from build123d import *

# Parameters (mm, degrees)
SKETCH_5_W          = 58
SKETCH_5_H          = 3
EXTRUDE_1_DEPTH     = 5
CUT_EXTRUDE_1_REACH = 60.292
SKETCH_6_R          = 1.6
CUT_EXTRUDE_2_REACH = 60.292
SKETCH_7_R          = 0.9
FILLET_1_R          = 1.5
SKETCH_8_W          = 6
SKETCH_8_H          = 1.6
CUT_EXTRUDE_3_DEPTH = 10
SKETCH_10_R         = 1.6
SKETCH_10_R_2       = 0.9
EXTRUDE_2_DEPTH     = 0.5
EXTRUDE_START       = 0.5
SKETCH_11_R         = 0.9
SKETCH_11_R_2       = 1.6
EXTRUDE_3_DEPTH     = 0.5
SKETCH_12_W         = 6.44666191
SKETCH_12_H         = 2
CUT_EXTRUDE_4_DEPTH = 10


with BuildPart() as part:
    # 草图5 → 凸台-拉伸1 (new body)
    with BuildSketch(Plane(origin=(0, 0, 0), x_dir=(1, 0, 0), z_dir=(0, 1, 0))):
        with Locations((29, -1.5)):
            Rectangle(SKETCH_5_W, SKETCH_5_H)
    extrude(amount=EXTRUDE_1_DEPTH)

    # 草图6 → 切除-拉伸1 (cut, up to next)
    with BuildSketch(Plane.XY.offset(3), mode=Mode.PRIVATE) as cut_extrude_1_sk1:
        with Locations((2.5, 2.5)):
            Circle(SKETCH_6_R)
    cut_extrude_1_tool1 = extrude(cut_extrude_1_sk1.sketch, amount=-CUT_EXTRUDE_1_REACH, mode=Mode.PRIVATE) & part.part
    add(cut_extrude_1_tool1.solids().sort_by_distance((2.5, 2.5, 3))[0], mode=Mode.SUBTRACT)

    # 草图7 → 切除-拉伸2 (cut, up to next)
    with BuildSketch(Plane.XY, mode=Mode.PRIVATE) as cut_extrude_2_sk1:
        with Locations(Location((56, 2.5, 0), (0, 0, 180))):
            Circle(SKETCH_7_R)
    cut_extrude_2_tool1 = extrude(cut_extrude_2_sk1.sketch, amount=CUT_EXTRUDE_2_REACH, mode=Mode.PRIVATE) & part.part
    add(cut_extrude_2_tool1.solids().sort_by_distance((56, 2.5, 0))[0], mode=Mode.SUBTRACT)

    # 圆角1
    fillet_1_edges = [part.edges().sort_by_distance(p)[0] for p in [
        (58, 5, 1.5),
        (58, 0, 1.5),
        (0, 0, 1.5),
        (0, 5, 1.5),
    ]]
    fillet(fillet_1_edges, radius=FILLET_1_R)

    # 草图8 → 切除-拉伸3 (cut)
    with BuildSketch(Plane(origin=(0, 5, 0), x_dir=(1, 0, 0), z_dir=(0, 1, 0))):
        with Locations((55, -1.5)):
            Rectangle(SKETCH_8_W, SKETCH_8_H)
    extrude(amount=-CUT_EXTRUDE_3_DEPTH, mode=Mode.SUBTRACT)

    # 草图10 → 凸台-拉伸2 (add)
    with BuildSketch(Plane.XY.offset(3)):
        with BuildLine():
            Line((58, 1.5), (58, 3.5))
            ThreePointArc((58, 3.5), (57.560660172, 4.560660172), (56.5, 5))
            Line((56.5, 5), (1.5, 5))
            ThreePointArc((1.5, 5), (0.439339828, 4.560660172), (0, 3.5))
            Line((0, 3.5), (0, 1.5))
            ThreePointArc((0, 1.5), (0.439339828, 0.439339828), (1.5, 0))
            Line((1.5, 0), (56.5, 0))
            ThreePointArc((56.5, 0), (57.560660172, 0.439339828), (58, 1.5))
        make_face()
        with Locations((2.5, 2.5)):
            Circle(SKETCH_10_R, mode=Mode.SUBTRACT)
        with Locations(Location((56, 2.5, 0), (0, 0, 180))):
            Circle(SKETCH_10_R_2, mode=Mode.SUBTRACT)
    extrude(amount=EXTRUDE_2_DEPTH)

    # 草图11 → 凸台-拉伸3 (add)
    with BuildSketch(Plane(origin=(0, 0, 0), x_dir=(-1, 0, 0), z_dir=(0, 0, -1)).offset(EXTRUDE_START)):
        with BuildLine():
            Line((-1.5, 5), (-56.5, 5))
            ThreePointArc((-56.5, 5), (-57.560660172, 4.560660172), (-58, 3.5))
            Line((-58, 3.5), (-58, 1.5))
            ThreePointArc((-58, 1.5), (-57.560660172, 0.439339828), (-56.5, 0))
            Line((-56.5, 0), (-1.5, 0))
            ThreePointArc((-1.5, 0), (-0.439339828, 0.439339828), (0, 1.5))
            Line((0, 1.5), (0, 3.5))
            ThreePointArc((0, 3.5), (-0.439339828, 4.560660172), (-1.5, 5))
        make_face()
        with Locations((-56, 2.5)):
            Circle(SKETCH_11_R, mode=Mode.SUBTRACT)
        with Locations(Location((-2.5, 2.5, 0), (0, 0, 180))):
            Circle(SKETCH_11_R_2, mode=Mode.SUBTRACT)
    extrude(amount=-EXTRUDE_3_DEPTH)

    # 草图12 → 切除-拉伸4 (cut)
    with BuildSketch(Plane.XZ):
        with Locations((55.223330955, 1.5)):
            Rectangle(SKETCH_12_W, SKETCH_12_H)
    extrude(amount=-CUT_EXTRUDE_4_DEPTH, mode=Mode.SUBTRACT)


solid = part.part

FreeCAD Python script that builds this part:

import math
import FreeCAD as App
import Part
import Sketcher
from FreeCAD import Vector


def edges_at(feature, points):
    """Names of the edges that pass closest to the given points."""
    edges = feature.Shape.Edges
    near = lambda p: min(range(len(edges)), key=lambda i: edges[i].distToShape(Part.Vertex(*p))[0])
    return sorted({f"Edge{near(p) + 1}" for p in points})

doc = App.newDocument("Part")
params = doc.addObject("Spreadsheet::Sheet", "Params")
for row, (alias, value) in enumerate([
    ("sketch1_width", "58 mm"),
    ("sketch1_height", "3 mm"),
    ("pad1_length", "5 mm"),
    ("sketch2_diameter", "3.2 mm"),
    ("sketch3_diameter", "1.8 mm"),
    ("fillet_radius", "1.5 mm"),
    ("sketch4_width", "6 mm"),
    ("sketch4_height", "1.6 mm"),
    ("pocket3_length", "10 mm"),
    ("sketch5_diameter", "3.2 mm"),
    ("sketch5_diameter2", "1.8 mm"),
    ("sketch5_radius", "1.5 mm"),
    ("sketch5_width", "55 mm"),
    ("sketch5_height", "2 mm"),
    ("pad2_length", "0.5 mm"),
    ("sketch6_diameter", "1.8 mm"),
    ("sketch6_diameter2", "3.2 mm"),
    ("sketch6_radius", "1.5 mm"),
    ("sketch6_width", "55 mm"),
    ("sketch6_height", "2 mm"),
    ("pad3_length", "0.5 mm"),
    ("sketch7_height", "2 mm"),
    ("pocket4_length", "10 mm"),
], start=1):
    params.set(f"A{row}", alias)
    params.set(f"B{row}", "=" + value)
    params.setAlias(f"B{row}", alias)

body = doc.addObject("PartDesign::Body", "Body")

# Sketch on XZ plane
sketch1 = doc.addObject("Sketcher::SketchObject", "Sketch")
body.addObject(sketch1)
sketch1.AttachmentSupport = (doc.XZ_Plane, [""])
sketch1.MapMode = "FlatFace"
sketch1.addGeometry(Part.LineSegment(Vector(0, 0, 0), Vector(0, 3, 0)), False)
sketch1.addGeometry(Part.LineSegment(Vector(0, 3, 0), Vector(58, 3, 0)), False)
sketch1.addGeometry(Part.LineSegment(Vector(58, 3, 0), Vector(58, 0, 0)), False)
sketch1.addGeometry(Part.LineSegment(Vector(58, 0, 0), Vector(0, 0, 0)), False)
sketch1.addConstraint(Sketcher.Constraint("Coincident", 0, 2, 1, 1))
sketch1.addConstraint(Sketcher.Constraint("Coincident", 1, 2, 2, 1))
sketch1.addConstraint(Sketcher.Constraint("Coincident", 2, 2, 3, 1))
sketch1.addConstraint(Sketcher.Constraint("Coincident", 3, 2, 0, 1))
sketch1.addConstraint(Sketcher.Constraint("Vertical", 0))
sketch1.addConstraint(Sketcher.Constraint("Horizontal", 1))
sketch1.addConstraint(Sketcher.Constraint("Vertical", 2))
sketch1.addConstraint(Sketcher.Constraint("Horizontal", 3))
sketch1.addConstraint(Sketcher.Constraint("Coincident", 3, 2, -1, 1))
sketch1.addConstraint(Sketcher.Constraint("DistanceX", 1, 1, 1, 2, 58.0))
sketch1.addConstraint(Sketcher.Constraint("DistanceY", 0, 1, 0, 2, 3.0))
sketch1.setExpression("Constraints[9]", "Params.sketch1_width")
sketch1.setExpression("Constraints[10]", "Params.sketch1_height")
pad1 = doc.addObject("PartDesign::Pad", "Pad")
body.addObject(pad1)
pad1.Profile = sketch1
pad1.setExpression("Length", "Params.pad1_length")
pad1.Reversed = True

# Sketch on XY plane
sketch2 = doc.addObject("Sketcher::SketchObject", "Sketch001")
body.addObject(sketch2)
sketch2.AttachmentSupport = (doc.XY_Plane, [""])
sketch2.MapMode = "FlatFace"
sketch2.AttachmentOffset = App.Placement(Vector(0, 0, 3), App.Rotation())
sketch2.addGeometry(Part.Circle(Vector(2.5, 2.5, 0), Vector(0, 0, 1), 1.6), False)
sketch2.addConstraint(Sketcher.Constraint("Diameter", 0, 3.2))
sketch2.addConstraint(Sketcher.Constraint("DistanceX", -1, 1, 0, 3, 2.5))
sketch2.addConstraint(Sketcher.Constraint("DistanceY", -1, 1, 0, 3, 2.5))
sketch2.setExpression("Constraints[0]", "Params.sketch2_diameter")
pocket1 = doc.addObject("PartDesign::Pocket", "Pocket")
body.addObject(pocket1)
pocket1.Profile = sketch2
pocket1.Type = "UpToFirst"

# Sketch on XY plane
sketch3 = doc.addObject("Sketcher::SketchObject", "Sketch002")
body.addObject(sketch3)
sketch3.AttachmentSupport = (doc.XY_Plane, [""])
sketch3.MapMode = "FlatFace"
sketch3.addGeometry(Part.Circle(Vector(56, 2.5, 0), Vector(0, 0, 1), 0.9), False)
sketch3.addConstraint(Sketcher.Constraint("Diameter", 0, 1.8))
sketch3.addConstraint(Sketcher.Constraint("DistanceX", -1, 1, 0, 3, 56.0))
sketch3.addConstraint(Sketcher.Constraint("DistanceY", -1, 1, 0, 3, 2.5))
sketch3.setExpression("Constraints[0]", "Params.sketch3_diameter")
pocket2 = doc.addObject("PartDesign::Pocket", "Pocket001")
body.addObject(pocket2)
pocket2.Profile = sketch3
pocket2.Type = "UpToFirst"
pocket2.Reversed = True
doc.recompute()

fillet = doc.addObject("PartDesign::Fillet", "Fillet")
body.addObject(fillet)
fillet.Base = (pocket2, edges_at(pocket2, [
    (58, 5, 1.5),
    (58, 0, 1.5),
    (0, 0, 1.5),
    (0, 5, 1.5),
]))
fillet.setExpression("Radius", "Params.fillet_radius")

# Sketch on XZ plane
sketch4 = doc.addObject("Sketcher::SketchObject", "Sketch003")
body.addObject(sketch4)
sketch4.AttachmentSupport = (doc.XZ_Plane, [""])
sketch4.MapMode = "FlatFace"
sketch4.AttachmentOffset = App.Placement(Vector(0, 0, -5), App.Rotation())
sketch4.addGeometry(Part.LineSegment(Vector(52, 0.7, 0), Vector(52, 2.3, 0)), False)
sketch4.addGeometry(Part.LineSegment(Vector(52, 2.3, 0), Vector(58, 2.3, 0)), False)
sketch4.addGeometry(Part.LineSegment(Vector(58, 2.3, 0), Vector(58, 0.7, 0)), False)
sketch4.addGeometry(Part.LineSegment(Vector(58, 0.7, 0), Vector(52, 0.7, 0)), False)
sketch4.addConstraint(Sketcher.Constraint("Coincident", 0, 2, 1, 1))
sketch4.addConstraint(Sketcher.Constraint("Coincident", 1, 2, 2, 1))
sketch4.addConstraint(Sketcher.Constraint("Coincident", 2, 2, 3, 1))
sketch4.addConstraint(Sketcher.Constraint("Coincident", 3, 2, 0, 1))
sketch4.addConstraint(Sketcher.Constraint("Vertical", 0))
sketch4.addConstraint(Sketcher.Constraint("Horizontal", 1))
sketch4.addConstraint(Sketcher.Constraint("Vertical", 2))
sketch4.addConstraint(Sketcher.Constraint("Horizontal", 3))
sketch4.addConstraint(Sketcher.Constraint("DistanceX", 1, 1, 1, 2, 6.0))
sketch4.addConstraint(Sketcher.Constraint("DistanceY", 0, 1, 0, 2, 1.6))
sketch4.addConstraint(Sketcher.Constraint("DistanceX", -1, 1, 0, 2, 52.0))
sketch4.addConstraint(Sketcher.Constraint("DistanceY", -1, 1, 0, 2, 2.3))
sketch4.setExpression("Constraints[8]", "Params.sketch4_width")
sketch4.setExpression("Constraints[9]", "Params.sketch4_height")
pocket3 = doc.addObject("PartDesign::Pocket", "Pocket002")
body.addObject(pocket3)
pocket3.Profile = sketch4
pocket3.setExpression("Length", "Params.pocket3_length")
pocket3.Reversed = True

# Sketch on XY plane
sketch5 = doc.addObject("Sketcher::SketchObject", "Sketch004")
body.addObject(sketch5)
sketch5.AttachmentSupport = (doc.XY_Plane, [""])
sketch5.MapMode = "FlatFace"
sketch5.AttachmentOffset = App.Placement(Vector(0, 0, 3), App.Rotation())
sketch5.addGeometry(Part.LineSegment(Vector(58, 1.5, 0), Vector(58, 3.5, 0)), False)
sketch5.addGeometry(Part.ArcOfCircle(Part.Circle(Vector(56.5, 3.5, 0), Vector(0, 0, 1), 1.5), math.radians(0), math.radians(90)), False)
sketch5.addGeometry(Part.LineSegment(Vector(56.5, 5, 0), Vector(1.5, 5, 0)), False)
sketch5.addGeometry(Part.ArcOfCircle(Part.Circle(Vector(1.5, 3.5, 0), Vector(0, 0, 1), 1.5), math.radians(90), math.radians(180)), False)
sketch5.addGeometry(Part.LineSegment(Vector(0, 3.5, 0), Vector(0, 1.5, 0)), False)
sketch5.addGeometry(Part.ArcOfCircle(Part.Circle(Vector(1.5, 1.5, 0), Vector(0, 0, 1), 1.5), math.radians(180), math.radians(270)), False)
sketch5.addGeometry(Part.LineSegment(Vector(1.5, 0, 0), Vector(56.5, 0, 0)), False)
sketch5.addGeometry(Part.ArcOfCircle(Part.Circle(Vector(56.5, 1.5, 0), Vector(0, 0, 1), 1.5), math.radians(-90), math.radians(0)), False)
sketch5.addGeometry(Part.Circle(Vector(2.5, 2.5, 0), Vector(0, 0, 1), 1.6), False)
sketch5.addGeometry(Part.Circle(Vector(56, 2.5, 0), Vector(0, 0, 1), 0.9), False)
sketch5.addConstraint(Sketcher.Constraint("Tangent", 0, 2, 1, 1))
sketch5.addConstraint(Sketcher.Constraint("Tangent", 1, 2, 2, 1))
sketch5.addConstraint(Sketcher.Constraint("Tangent", 2, 2, 3, 1))
sketch5.addConstraint(Sketcher.Constraint("Tangent", 3, 2, 4, 1))
sketch5.addConstraint(Sketcher.Constraint("Tangent", 4, 2, 5, 1))
sketch5.addConstraint(Sketcher.Constraint("Tangent", 5, 2, 6, 1))
sketch5.addConstraint(Sketcher.Constraint("Tangent", 6, 2, 7, 1))
sketch5.addConstraint(Sketcher.Constraint("Tangent", 7, 2, 0, 1))
sketch5.addConstraint(Sketcher.Constraint("Vertical", 0))
sketch5.addConstraint(Sketcher.Constraint("Horizontal", 2))
sketch5.addConstraint(Sketcher.Constraint("Vertical", 4))
sketch5.addConstraint(Sketcher.Constraint("Horizontal", 6))
sketch5.addConstraint(Sketcher.Constraint("Equal", 1, 3))
sketch5.addConstraint(Sketcher.Constraint("Equal", 3, 5))
sketch5.addConstraint(Sketcher.Constraint("Equal", 5, 7))
sketch5.addConstraint(Sketcher.Constraint("PointOnObject", 3, 2, -2))
sketch5.addConstraint(Sketcher.Constraint("PointOnObject", 5, 2, -1))
sketch5.addConstraint(Sketcher.Constraint("Horizontal", 8, 3, 9, 3))
sketch5.addConstraint(Sketcher.Constraint("Diameter", 8, 3.2))
sketch5.addConstraint(Sketcher.Constraint("Diameter", 9, 1.8))
sketch5.addConstraint(Sketcher.Constraint("Radius", 1, 1.5))
sketch5.addConstraint(Sketcher.Constraint("DistanceX", 2, 2, 2, 1, 55.0))
sketch5.addConstraint(Sketcher.Constraint("DistanceY", 0, 1, 0, 2, 2.0))
sketch5.addConstraint(Sketcher.Constraint("DistanceX", -1, 1, 9, 3, 56.0))
sketch5.addConstraint(Sketcher.Constraint("DistanceX", 3, 3, 8, 3, 1.0))
sketch5.addConstraint(Sketcher.Constraint("DistanceY", 8, 3, 3, 3, 1.0))
sketch5.setExpression("Constraints[18]", "Params.sketch5_diameter")
sketch5.setExpression("Constraints[19]", "Params.sketch5_diameter2")
sketch5.setExpression("Constraints[20]", "Params.sketch5_radius")
sketch5.setExpression("Constraints[21]", "Params.sketch5_width")
sketch5.setExpression("Constraints[22]", "Params.sketch5_height")
pad2 = doc.addObject("PartDesign::Pad", "Pad001")
body.addObject(pad2)
pad2.Profile = sketch5
pad2.setExpression("Length", "Params.pad2_length")

# Sketch on XY plane
sketch6 = doc.addObject("Sketcher::SketchObject", "Sketch005")
body.addObject(sketch6)
sketch6.AttachmentSupport = (doc.XY_Plane, [""])
sketch6.MapMode = "FlatFace"
sketch6.AttachmentOffset = App.Placement(Vector(0, 0, -0.5), App.Rotation())
sketch6.addGeometry(Part.LineSegment(Vector(1.5, 5, 0), Vector(56.5, 5, 0)), False)
sketch6.addGeometry(Part.ArcOfCircle(Part.Circle(Vector(56.5, 3.5, 0), Vector(0, 0, 1), 1.5), math.radians(0), math.radians(90)), False)
sketch6.addGeometry(Part.LineSegment(Vector(58, 3.5, 0), Vector(58, 1.5, 0)), False)
sketch6.addGeometry(Part.ArcOfCircle(Part.Circle(Vector(56.5, 1.5, 0), Vector(0, 0, 1), 1.5), math.radians(-90), math.radians(0)), False)
sketch6.addGeometry(Part.LineSegment(Vector(56.5, 0, 0), Vector(1.5, 0, 0)), False)
sketch6.addGeometry(Part.ArcOfCircle(Part.Circle(Vector(1.5, 1.5, 0), Vector(0, 0, 1), 1.5), math.radians(180), math.radians(270)), False)
sketch6.addGeometry(Part.LineSegment(Vector(0, 1.5, 0), Vector(0, 3.5, 0)), False)
sketch6.addGeometry(Part.ArcOfCircle(Part.Circle(Vector(1.5, 3.5, 0), Vector(0, 0, 1), 1.5), math.radians(90), math.radians(180)), False)
sketch6.addGeometry(Part.Circle(Vector(56, 2.5, 0), Vector(0, 0, 1), 0.9), False)
sketch6.addGeometry(Part.Circle(Vector(2.5, 2.5, 0), Vector(0, 0, 1), 1.6), False)
sketch6.addConstraint(Sketcher.Constraint("Tangent", 0, 2, 1, 2))
sketch6.addConstraint(Sketcher.Constraint("Tangent", 1, 1, 2, 1))
sketch6.addConstraint(Sketcher.Constraint("Tangent", 2, 2, 3, 2))
sketch6.addConstraint(Sketcher.Constraint("Tangent", 3, 1, 4, 1))
sketch6.addConstraint(Sketcher.Constraint("Tangent", 4, 2, 5, 2))
sketch6.addConstraint(Sketcher.Constraint("Tangent", 5, 1, 6, 1))
sketch6.addConstraint(Sketcher.Constraint("Tangent", 6, 2, 7, 2))
sketch6.addConstraint(Sketcher.Constraint("Tangent", 7, 1, 0, 1))
sketch6.addConstraint(Sketcher.Constraint("Horizontal", 0))
sketch6.addConstraint(Sketcher.Constraint("Vertical", 2))
sketch6.addConstraint(Sketcher.Constraint("Horizontal", 4))
sketch6.addConstraint(Sketcher.Constraint("Vertical", 6))
sketch6.addConstraint(Sketcher.Constraint("Equal", 1, 3))
sketch6.addConstraint(Sketcher.Constraint("Equal", 3, 5))
sketch6.addConstraint(Sketcher.Constraint("Equal", 5, 7))
sketch6.addConstraint(Sketcher.Constraint("PointOnObject", 3, 1, -1))
sketch6.addConstraint(Sketcher.Constraint("PointOnObject", 5, 1, -2))
sketch6.addConstraint(Sketcher.Constraint("Horizontal", 8, 3, 9, 3))
sketch6.addConstraint(Sketcher.Constraint("Diameter", 8, 1.8))
sketch6.addConstraint(Sketcher.Constraint("Diameter", 9, 3.2))
sketch6.addConstraint(Sketcher.Constraint("Radius", 1, 1.5))
sketch6.addConstraint(Sketcher.Constraint("DistanceX", 0, 1, 0, 2, 55.0))
sketch6.addConstraint(Sketcher.Constraint("DistanceY", 2, 2, 2, 1, 2.0))
sketch6.addConstraint(Sketcher.Constraint("DistanceX", -1, 1, 8, 3, 56.0))
sketch6.addConstraint(Sketcher.Constraint("DistanceY", 8, 3, 1, 3, 1.0))
sketch6.addConstraint(Sketcher.Constraint("DistanceX", 5, 3, 9, 3, 1.0))
sketch6.setExpression("Constraints[18]", "Params.sketch6_diameter")
sketch6.setExpression("Constraints[19]", "Params.sketch6_diameter2")
sketch6.setExpression("Constraints[20]", "Params.sketch6_radius")
sketch6.setExpression("Constraints[21]", "Params.sketch6_width")
sketch6.setExpression("Constraints[22]", "Params.sketch6_height")
pad3 = doc.addObject("PartDesign::Pad", "Pad002")
body.addObject(pad3)
pad3.Profile = sketch6
pad3.setExpression("Length", "Params.pad3_length")

# Sketch on XZ plane
sketch7 = doc.addObject("Sketcher::SketchObject", "Sketch006")
body.addObject(sketch7)
sketch7.AttachmentSupport = (doc.XZ_Plane, [""])
sketch7.MapMode = "FlatFace"
sketch7.addGeometry(Part.LineSegment(Vector(52, 2.5, 0), Vector(52, 0.5, 0)), False)
sketch7.addGeometry(Part.LineSegment(Vector(52, 0.5, 0), Vector(58.4, 0.5, 0)), False)
sketch7.addGeometry(Part.LineSegment(Vector(58.4, 0.5, 0), Vector(58.4, 2.5, 0)), False)
sketch7.addGeometry(Part.LineSegment(Vector(58.4, 2.5, 0), Vector(52, 2.5, 0)), False)
sketch7.addConstraint(Sketcher.Constraint("Coincident", 0, 2, 1, 1))
sketch7.addConstraint(Sketcher.Constraint("Coincident", 1, 2, 2, 1))
sketch7.addConstraint(Sketcher.Constraint("Coincident", 2, 2, 3, 1))
sketch7.addConstraint(Sketcher.Constraint("Coincident", 3, 2, 0, 1))
sketch7.addConstraint(Sketcher.Constraint("Vertical", 0))
sketch7.addConstraint(Sketcher.Constraint("Horizontal", 1))
sketch7.addConstraint(Sketcher.Constraint("Vertical", 2))
sketch7.addConstraint(Sketcher.Constraint("Horizontal", 3))
sketch7.addConstraint(Sketcher.Constraint("DistanceY", 0, 2, 0, 1, 2.0))
sketch7.addConstraint(Sketcher.Constraint("DistanceX", -1, 1, 0, 2, 52.0))
sketch7.addConstraint(Sketcher.Constraint("DistanceY", -1, 1, 0, 2, 0.5))
sketch7.addConstraint(Sketcher.Constraint("DistanceX", 1, 1, 1, 2, 6.446662))
sketch7.setExpression("Constraints[8]", "Params.sketch7_height")
pocket4 = doc.addObject("PartDesign::Pocket", "Pocket003")
body.addObject(pocket4)
pocket4.Profile = sketch7
pocket4.setExpression("Length", "Params.pocket4_length")

doc.recompute()
